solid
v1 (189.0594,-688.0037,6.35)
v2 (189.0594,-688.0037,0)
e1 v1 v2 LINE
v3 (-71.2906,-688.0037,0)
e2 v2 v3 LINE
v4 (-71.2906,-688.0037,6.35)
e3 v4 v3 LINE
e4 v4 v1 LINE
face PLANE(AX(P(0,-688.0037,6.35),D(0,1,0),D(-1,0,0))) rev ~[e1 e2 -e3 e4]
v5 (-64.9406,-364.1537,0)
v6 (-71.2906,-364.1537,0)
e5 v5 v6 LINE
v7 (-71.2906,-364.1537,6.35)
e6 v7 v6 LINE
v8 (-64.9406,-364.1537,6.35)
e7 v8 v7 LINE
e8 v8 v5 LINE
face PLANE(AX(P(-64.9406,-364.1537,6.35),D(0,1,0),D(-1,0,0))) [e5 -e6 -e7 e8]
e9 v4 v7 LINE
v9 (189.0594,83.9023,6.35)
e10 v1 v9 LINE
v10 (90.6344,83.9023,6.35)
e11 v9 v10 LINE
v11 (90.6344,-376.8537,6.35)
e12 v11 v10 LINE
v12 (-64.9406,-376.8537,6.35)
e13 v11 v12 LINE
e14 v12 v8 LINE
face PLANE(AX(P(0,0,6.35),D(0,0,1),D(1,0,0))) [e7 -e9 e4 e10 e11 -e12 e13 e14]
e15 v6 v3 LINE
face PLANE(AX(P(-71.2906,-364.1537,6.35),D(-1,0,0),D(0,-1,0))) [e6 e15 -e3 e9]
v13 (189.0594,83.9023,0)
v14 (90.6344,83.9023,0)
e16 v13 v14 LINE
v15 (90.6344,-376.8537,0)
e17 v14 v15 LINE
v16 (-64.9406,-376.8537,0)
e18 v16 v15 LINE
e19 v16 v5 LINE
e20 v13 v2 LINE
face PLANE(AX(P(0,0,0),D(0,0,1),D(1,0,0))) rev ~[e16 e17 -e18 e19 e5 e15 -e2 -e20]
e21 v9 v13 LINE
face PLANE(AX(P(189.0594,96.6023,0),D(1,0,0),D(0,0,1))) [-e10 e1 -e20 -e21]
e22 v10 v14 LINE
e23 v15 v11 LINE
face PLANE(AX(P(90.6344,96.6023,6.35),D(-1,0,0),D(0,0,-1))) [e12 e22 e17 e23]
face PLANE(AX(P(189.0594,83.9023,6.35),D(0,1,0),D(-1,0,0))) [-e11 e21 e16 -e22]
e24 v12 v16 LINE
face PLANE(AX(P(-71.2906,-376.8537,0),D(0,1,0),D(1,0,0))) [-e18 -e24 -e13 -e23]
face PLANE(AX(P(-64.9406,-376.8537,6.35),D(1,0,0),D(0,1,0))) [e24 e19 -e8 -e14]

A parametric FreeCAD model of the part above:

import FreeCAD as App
import Part
import Sketcher
Q = App.Units.Quantity

doc = App.newDocument("Part")
body = doc.addObject("PartDesign::Body", "Body")

sketch1 = body.newObject("Sketcher::SketchObject", "Sketch")
sketch1.AttachmentSupport = (doc.getObject("XY_Plane"), [""])
sketch1.MapMode = "FlatFace"
sketch1.addGeometry(Part.LineSegment(App.Vector(189, 97, 0), App.Vector(87, 97, 0)), False)
sketch1.addGeometry(Part.LineSegment(App.Vector(87, 97, 0), App.Vector(87, -364, 0)), False)
sketch1.addGeometry(Part.LineSegment(App.Vector(87, -364, 0), App.Vector(-65, -364, 0)), False)
sketch1.addGeometry(Part.LineSegment(App.Vector(-65, -364, 0), App.Vector(-65, -792, 0)), False)
sketch1.addGeometry(Part.LineSegment(App.Vector(-65, -792, 0), App.Vector(189, -792, 0)), False)
sketch1.addGeometry(Part.LineSegment(App.Vector(189, -792, 0), App.Vector(189, 97, 0)), False)
sketch1.addConstraint(Sketcher.Constraint("Coincident", 0, 2, 1, 1))
sketch1.addConstraint(Sketcher.Constraint("Coincident", 1, 2, 2, 1))
sketch1.addConstraint(Sketcher.Constraint("Coincident", 2, 2, 3, 1))
sketch1.addConstraint(Sketcher.Constraint("Coincident", 3, 2, 4, 1))
sketch1.addConstraint(Sketcher.Constraint("Coincident", 4, 2, 5, 1))
sketch1.addConstraint(Sketcher.Constraint("Coincident", 5, 2, 0, 1))
sketch1.addConstraint(Sketcher.Constraint("Horizontal", 0))
sketch1.addConstraint(Sketcher.Constraint("Vertical", 1))
sketch1.addConstraint(Sketcher.Constraint("Horizontal", 2))
sketch1.addConstraint(Sketcher.Constraint("Vertical", 3))
sketch1.addConstraint(Sketcher.Constraint("Horizontal", 4))
sketch1.addConstraint(Sketcher.Constraint("Vertical", 5))
sketch1.addConstraint(Sketcher.Constraint("DistanceX", 2, 2, 2, 1, Q("6 in")))
sketch1.addConstraint(Sketcher.Constraint("DistanceX", 4, 1, 4, 2, Q("10 in")))
sketch1.addConstraint(Sketcher.Constraint("DistanceY", 5, 1, 5, 2, Q("35 in")))
sketch1.addConstraint(Sketcher.Constraint("DistanceY", 1, 2, 1, 1, Q("18.14 in")))
sketch1.addConstraint(Sketcher.Constraint("DistanceX", -1, 1, 0, 2, Q("87.4594 mm")))
sketch1.addConstraint(Sketcher.Constraint("DistanceY", -1, 1, 0, 2, Q("96.6023 mm")))
pad1 = body.newObject("PartDesign::Pad", "Pad")
pad1.Profile = sketch1
pad1.Length = Q("0.25 in")

sketch2 = body.newObject("Sketcher::SketchObject", "Sketch001")
sketch2.AttachmentSupport = (doc.getObject("YZ_Plane"), [""])
sketch2.MapMode = "FlatFace"
sketch2.AttachmentOffset = App.Placement(App.Vector(0, 0, -64.9406), App.Rotation())
sketch2.addGeometry(Part.LineSegment(App.Vector(-792, 6, 0), App.Vector(-364, 6, 0)), False)
sketch2.addGeometry(Part.LineSegment(App.Vector(-364, 6, 0), App.Vector(-364, 0, 0)), False)
sketch2.addGeometry(Part.LineSegment(App.Vector(-364, 0, 0), App.Vector(-792, 0, 0)), False)
sketch2.addGeometry(Part.LineSegment(App.Vector(-792, 0, 0), App.Vector(-792, 6, 0)), False)
sketch2.addConstraint(Sketcher.Constraint("Coincident", 0, 2, 1, 1))
sketch2.addConstraint(Sketcher.Constraint("Coincident", 1, 2, 2, 1))
sketch2.addConstraint(Sketcher.Constraint("Coincident", 2, 2, 3, 1))
sketch2.addConstraint(Sketcher.Constraint("Coincident", 3, 2, 0, 1))
sketch2.addConstraint(Sketcher.Constraint("Horizontal", 0))
sketch2.addConstraint(Sketcher.Constraint("Vertical", 1))
sketch2.addConstraint(Sketcher.Constraint("Horizontal", 2))
sketch2.addConstraint(Sketcher.Constraint("Vertical", 3))
sketch2.addConstraint(Sketcher.Constraint("PointOnObject", 1, 2, -1))
sketch2.addConstraint(Sketcher.Constraint("DistanceX", 0, 1, 0, 2, Q("16.86 in")))
sketch2.addConstraint(Sketcher.Constraint("DistanceY", 1, 2, 1, 1, Q("0.25 in")))
sketch2.addConstraint(Sketcher.Constraint("DistanceX", 0, 2, -1, 1, Q("364.1537 mm")))
pad2 = body.newObject("PartDesign::Pad", "Pad001")
pad2.Profile = sketch2
pad2.Length = Q("0.25 in")
pad2.Reversed = True

sketch3 = body.newObject("Sketcher::SketchObject", "Sketch002")
sketch3.AttachmentSupport = (doc.getObject("XY_Plane"), [""])
sketch3.MapMode = "FlatFace"
sketch3.AttachmentOffset = App.Placement(App.Vector(0, 0, 0.25 * 25.4), App.Rotation())
sketch3.addGeometry(Part.LineSegment(App.Vector(90.6, 96.6, 0), App.Vector(87.5, 96.6, 0)), False)
sketch3.addGeometry(Part.LineSegment(App.Vector(87.5, 96.6, 0), App.Vector(87.5, -364.2, 0)), False)
sketch3.addGeometry(Part.LineSegment(App.Vector(87.5, -364.2, 0), App.Vector(90.6, -364.2, 0)), False)
sketch3.addGeometry(Part.LineSegment(App.Vector(90.6, -364.2, 0), App.Vector(90.6, 96.6, 0)), False)
sketch3.addConstraint(Sketcher.Constraint("Coincident", 0, 2, 1, 1))
sketch3.addConstraint(Sketcher.Constraint("Coincident", 1, 2, 2, 1))
sketch3.addConstraint(Sketcher.Constraint("Coincident", 2, 2, 3, 1))
sketch3.addConstraint(Sketcher.Constraint("Coincident", 3, 2, 0, 1))
sketch3.addConstraint(Sketcher.Constraint("Horizontal", 0))
sketch3.addConstraint(Sketcher.Constraint("Vertical", 1))
sketch3.addConstraint(Sketcher.Constraint("Horizontal", 2))
sketch3.addConstraint(Sketcher.Constraint("Vertical", 3))
sketch3.addConstraint(Sketcher.Constraint("DistanceX", 0, 2, 0, 1, Q("0.125 in")))
sketch3.addConstraint(Sketcher.Constraint("DistanceY", 1, 2, 1, 1, Q("18.14 in")))
sketch3.addConstraint(Sketcher.Constraint("DistanceX", -1, 1, 0, 2, Q("87.4594 mm")))
sketch3.addConstraint(Sketcher.Constraint("DistanceY", -1, 1, 0, 2, Q("96.6023 mm")))
pocket1 = body.newObject("PartDesign::Pocket", "Pocket")
pocket1.Profile = sketch3
pocket1.Length = Q("0.25 in")

sketch4 = body.newObject("Sketcher::SketchObject", "Sketch003")
sketch4.AttachmentSupport = (doc.getObject("XZ_Plane"), [""])
sketch4.MapMode = "FlatFace"
sketch4.AttachmentOffset = App.Placement(App.Vector(0, 0, -96.6023), App.Rotation())
sketch4.addGeometry(Part.LineSegment(App.Vector(189, 0, 0), App.Vector(91, 0, 0)), False)
sketch4.addGeometry(Part.LineSegment(App.Vector(91, 0, 0), App.Vector(91, 6, 0)), False)
sketch4.addGeometry(Part.LineSegment(App.Vector(91, 6, 0), App.Vector(189, 6, 0)), False)
sketch4.addGeometry(Part.LineSegment(App.Vector(189, 6, 0), App.Vector(189, 0, 0)), False)
sketch4.addConstraint(Sketcher.Constraint("Coincident", 0, 2, 1, 1))
sketch4.addConstraint(Sketcher.Constraint("Coincident", 1, 2, 2, 1))
sketch4.addConstraint(Sketcher.Constraint("Coincident", 2, 2, 3, 1))
sketch4.addConstraint(Sketcher.Constraint("Coincident", 3, 2, 0, 1))
sketch4.addConstraint(Sketcher.Constraint("Horizontal", 0))
sketch4.addConstraint(Sketcher.Constraint("Vertical", 1))
sketch4.addConstraint(Sketcher.Constraint("Horizontal", 2))
sketch4.addConstraint(Sketcher.Constraint("Vertical", 3))
sketch4.addConstraint(Sketcher.Constraint("PointOnObject", 0, 2, -1))
sketch4.addConstraint(Sketcher.Constraint("DistanceY", 1, 1, 1, 2, Q("0.25 in")))
sketch4.addConstraint(Sketcher.Constraint("DistanceX", 0, 2, 0, 1, Q("3.875 in")))
sketch4.addConstraint(Sketcher.Constraint("DistanceX", -1, 1, 0, 2, Q("90.6344 mm")))
pad3 = body.newObject("PartDesign::Pad", "Pad002")
pad3.Profile = sketch4
pad3.Length = Q("0.25 in")
pad3.Reversed = True

sketch5 = body.newObject("Sketcher::SketchObject", "Sketch004")
sketch5.AttachmentSupport = (doc.getObject("XZ_Plane"), [""])
sketch5.MapMode = "FlatFace"
sketch5.AttachmentOffset = App.Placement(App.Vector(0, 0, -102.9523), App.Rotation())
sketch5.addGeometry(Part.LineSegment(App.Vector(189, 0, 0), App.Vector(91, 0, 0)), False)
sketch5.addGeometry(Part.LineSegment(App.Vector(91, 0, 0), App.Vector(91, 6, 0)), False)
sketch5.addGeometry(Part.LineSegment(App.Vector(91, 6, 0), App.Vector(189, 6, 0)), False)
sketch5.addGeometry(Part.LineSegment(App.Vector(189, 6, 0), App.Vector(189, 0, 0)), False)
sketch5.addConstraint(Sketcher.Constraint("Coincident", 0, 2, 1, 1))
sketch5.addConstraint(Sketcher.Constraint("Coincident", 1, 2, 2, 1))
sketch5.addConstraint(Sketcher.Constraint("Coincident", 2, 2, 3, 1))
sketch5.addConstraint(Sketcher.Constraint("Coincident", 3, 2, 0, 1))
sketch5.addConstraint(Sketcher.Constraint("Horizontal", 0))
sketch5.addConstraint(Sketcher.Constraint("Vertical", 1))
sketch5.addConstraint(Sketcher.Constraint("Horizontal", 2))
sketch5.addConstraint(Sketcher.Constraint("Vertical", 3))
sketch5.addConstraint(Sketcher.Constraint("PointOnObject", 0, 2, -1))
sketch5.addConstraint(Sketcher.Constraint("DistanceY", 1, 1, 1, 2, Q("0.25 in")))
sketch5.addConstraint(Sketcher.Constraint("DistanceX", 0, 2, 0, 1, Q("3.875 in")))
sketch5.addConstraint(Sketcher.Constraint("DistanceX", -1, 1, 0, 2, Q("90.6344 mm")))
pocket2 = body.newObject("PartDesign::Pocket", "Pocket001")
pocket2.Profile = sketch5
pocket2.Length = Q("0.25 in")
pocket2.Reversed = True

sketch6 = body.newObject("Sketcher::SketchObject", "Sketch005")
sketch6.AttachmentSupport = (doc.getObject("XZ_Plane"), [""])
sketch6.MapMode = "FlatFace"
sketch6.AttachmentOffset = App.Placement(App.Vector(0, 0, -96.6023), App.Rotation())
sketch6.addGeometry(Part.LineSegment(App.Vector(91, 0, 0), App.Vector(91, 6, 0)), False)
sketch6.addGeometry(Part.LineSegment(App.Vector(91, 6, 0), App.Vector(189, 6, 0)), False)
sketch6.addGeometry(Part.LineSegment(App.Vector(189, 6, 0), App.Vector(189, 0, 0)), False)
sketch6.addGeometry(Part.LineSegment(App.Vector(189, 0, 0), App.Vector(91, 0, 0)), False)
sketch6.addConstraint(Sketcher.Constraint("Coincident", 0, 2, 1, 1))
sketch6.addConstraint(Sketcher.Constraint("Coincident", 1, 2, 2, 1))
sketch6.addConstraint(Sketcher.Constraint("Coincident", 2, 2, 3, 1))
sketch6.addConstraint(Sketcher.Constraint("Coincident", 3, 2, 0, 1))
sketch6.addConstraint(Sketcher.Constraint("Vertical", 0))
sketch6.addConstraint(Sketcher.Constraint("Horizontal", 1))
sketch6.addConstraint(Sketcher.Constraint("Vertical", 2))
sketch6.addConstraint(Sketcher.Constraint("Horizontal", 3))
sketch6.addConstraint(Sketcher.Constraint("PointOnObject", 2, 2, -1))
sketch6.addConstraint(Sketcher.Constraint("DistanceY", 0, 1, 0, 2, Q("0.25 in")))
sketch6.addConstraint(Sketcher.Constraint("DistanceX", 1, 1, 1, 2, Q("3.875 in")))
sketch6.addConstraint(Sketcher.Constraint("DistanceX", -1, 1, 0, 2, Q("90.6344 mm")))
pad4 = body.newObject("PartDesign::Pad", "Pad003")
pad4.Profile = sketch6
pad4.Length = Q("0.25 in")
pad4.Reversed = True

sketch7 = body.newObject("Sketcher::SketchObject", "Sketch006")
sketch7.AttachmentSupport = (doc.getObject("XY_Plane"), [""])
sketch7.MapMode = "FlatFace"
sketch7.AttachmentOffset = App.Placement(App.Vector(0, 0, 0.25 * 25.4), App.Rotation())
sketch7.addGeometry(Part.LineSegment(App.Vector(189, -688, 0), App.Vector(-71, -688, 0)), False)
sketch7.addGeometry(Part.LineSegment(App.Vector(-71, -688, 0), App.Vector(-71, -792, 0)), False)
sketch7.addGeometry(Part.LineSegment(App.Vector(-71, -792, 0), App.Vector(189, -792, 0)), False)
sketch7.addGeometry(Part.LineSegment(App.Vector(189, -792, 0), App.Vector(189, -688, 0)), False)
sketch7.addConstraint(Sketcher.Constraint("Coincident", 0, 2, 1, 1))
sketch7.addConstraint(Sketcher.Constraint("Coincident", 1, 2, 2, 1))
sketch7.addConstraint(Sketcher.Constraint("Coincident", 2, 2, 3, 1))
sketch7.addConstraint(Sketcher.Constraint("Coincident", 3, 2, 0, 1))
sketch7.addConstraint(Sketcher.Constraint("Horizontal", 0))
sketch7.addConstraint(Sketcher.Constraint("Vertical", 1))
sketch7.addConstraint(Sketcher.Constraint("Horizontal", 2))
sketch7.addConstraint(Sketcher.Constraint("Vertical", 3))
sketch7.addConstraint(Sketcher.Constraint("DistanceX", 0, 2, 0, 1, Q("10.25 in")))
sketch7.addConstraint(Sketcher.Constraint("DistanceY", 1, 2, 1, 1, Q("4.11 in")))
sketch7.addConstraint(Sketcher.Constraint("DistanceX", 0, 2, -1, 1, Q("71.2906 mm")))
sketch7.addConstraint(Sketcher.Constraint("DistanceY", 0, 2, -1, 1, Q("688.0037 mm")))
pocket3 = body.newObject("PartDesign::Pocket", "Pocket002")
pocket3.Profile = sketch7
pocket3.Length = Q("1 in")

sketch8 = body.newObject("Sketcher::SketchObject", "Sketch007")
sketch8.AttachmentSupport = (doc.getObject("XY_Plane"), [""])
sketch8.MapMode = "FlatFace"
sketch8.addGeometry(Part.LineSegment(App.Vector(91, -377, 0), App.Vector(-71, -377, 0)), False)
sketch8.addGeometry(Part.LineSegment(App.Vector(-71, -377, 0), App.Vector(-71, -364, 0)), False)
sketch8.addGeometry(Part.LineSegment(App.Vector(-71, -364, 0), App.Vector(91, -364, 0)), False)
sketch8.addGeometry(Part.LineSegment(App.Vector(91, -364, 0), App.Vector(91, -377, 0)), False)
sketch8.addConstraint(Sketcher.Constraint("Coincident", 0, 2, 1, 1))
sketch8.addConstraint(Sketcher.Constraint("Coincident", 1, 2, 2, 1))
sketch8.addConstraint(Sketcher.Constraint("Coincident", 2, 2, 3, 1))
sketch8.addConstraint(Sketcher.Constraint("Coincident", 3, 2, 0, 1))
sketch8.addConstraint(Sketcher.Constraint("Horizontal", 0))
sketch8.addConstraint(Sketcher.Constraint("Vertical", 1))
sketch8.addConstraint(Sketcher.Constraint("Horizontal", 2))
sketch8.addConstraint(Sketcher.Constraint("Vertical", 3))
sketch8.addConstraint(Sketcher.Constraint("DistanceY", 1, 1, 1, 2, Q("0.5 in")))
sketch8.addConstraint(Sketcher.Constraint("DistanceX", 0, 2, 0, 1, Q("6.375 in")))
sketch8.addConstraint(Sketcher.Constraint("DistanceX", 0, 2, -1, 1, Q("71.2906 mm")))
sketch8.addConstraint(Sketcher.Constraint("DistanceY", 0, 2, -1, 1, Q("376.8537 mm")))
pocket4 = body.newObject("PartDesign::Pocket", "Pocket003")
pocket4.Profile = sketch8
pocket4.Length = Q("1 in")
pocket4.Reversed = True

sketch9 = body.newObject("Sketcher::SketchObject", "Sketch008")
sketch9.AttachmentSupport = (doc.getObject("XY_Plane"), [""])
sketch9.MapMode = "FlatFace"
sketch9.AttachmentOffset = App.Placement(App.Vector(0, 0, 0.25 * 25.4), App.Rotation())
sketch9.addGeometry(Part.LineSegment(App.Vector(-71, -364, 0), App.Vector(-71, -377, 0)), False)
sketch9.addGeometry(Part.LineSegment(App.Vector(-71, -377, 0), App.Vector(-65, -377, 0)), False)
sketch9.addGeometry(Part.LineSegment(App.Vector(-65, -377, 0), App.Vector(-65, -364, 0)), False)
sketch9.addGeometry(Part.LineSegment(App.Vector(-65, -364, 0), App.Vector(-71, -364, 0)), False)
sketch9.addConstraint(Sketcher.Constraint("Coincident", 0, 2, 1, 1))
sketch9.addConstraint(Sketcher.Constraint("Coincident", 1, 2, 2, 1))
sketch9.addConstraint(Sketcher.Constraint("Coincident", 2, 2, 3, 1))
sketch9.addConstraint(Sketcher.Constraint("Coincident", 3, 2, 0, 1))
sketch9.addConstraint(Sketcher.Constraint("Vertical", 0))
sketch9.addConstraint(Sketcher.Constraint("Horizontal", 1))
sketch9.addConstraint(Sketcher.Constraint("Vertical", 2))
sketch9.addConstraint(Sketcher.Constraint("Horizontal", 3))
sketch9.addConstraint(Sketcher.Constraint("DistanceY", 0, 2, 0, 1, Q("0.5 in")))
sketch9.addConstraint(Sketcher.Constraint("DistanceX", 1, 1, 1, 2, Q("0.25 in")))
sketch9.addConstraint(Sketcher.Constraint("DistanceX", 0, 2, -1, 1, Q("71.2906 mm")))
sketch9.addConstraint(Sketcher.Constraint("DistanceY", 0, 2, -1, 1, Q("376.8537 mm")))
pad5 = body.newObject("PartDesign::Pad", "Pad004")
pad5.Profile = sketch9
pad5.Length = Q("0.25 in")
pad5.Reversed = True

sketch10 = body.newObject("Sketcher::SketchObject", "Sketch009")
sketch10.AttachmentSupport = (doc.getObject("XY_Plane"), [""])
sketch10.MapMode = "FlatFace"
sketch10.AttachmentOffset = App.Placement(App.Vector(0, 0, 0.25 * 25.4), App.Rotation())
sketch10.addGeometry(Part.LineSegment(App.Vector(189, 84, 0), App.Vector(189, 103, 0)), False)
sketch10.addGeometry(Part.LineSegment(App.Vector(189, 103, 0), App.Vector(91, 103, 0)), False)
sketch10.addGeometry(Part.LineSegment(App.Vector(91, 103, 0), App.Vector(91, 84, 0)), False)
sketch10.addGeometry(Part.LineSegment(App.Vector(91, 84, 0), App.Vector(189, 84, 0)), False)
sketch10.addConstraint(Sketcher.Constraint("Coincident", 0, 2, 1, 1))
sketch10.addConstraint(Sketcher.Constraint("Coincident", 1, 2, 2, 1))
sketch10.addConstraint(Sketcher.Constraint("Coincident", 2, 2, 3, 1))
sketch10.addConstraint(Sketcher.Constraint("Coincident", 3, 2, 0, 1))
sketch10.addConstraint(Sketcher.Constraint("Vertical", 0))
sketch10.addConstraint(Sketcher.Constraint("Horizontal", 1))
sketch10.addConstraint(Sketcher.Constraint("Vertical", 2))
sketch10.addConstraint(Sketcher.Constraint("Horizontal", 3))
sketch10.addConstraint(Sketcher.Constraint("DistanceY", 0, 1, 0, 2, Q("0.75 in")))
sketch10.addConstraint(Sketcher.Constraint("DistanceX", 1, 2, 1, 1, Q("3.875 in")))
sketch10.addConstraint(Sketcher.Constraint("DistanceX", -1, 1, 0, 2, Q("189.0594 mm")))
sketch10.addConstraint(Sketcher.Constraint("DistanceY", -1, 1, 0, 2, Q("102.9523 mm")))
pocket5 = body.newObject("PartDesign::Pocket", "Pocket004")
pocket5.Profile = sketch10
pocket5.Length = Q("0.25 in")

doc.recompute()
